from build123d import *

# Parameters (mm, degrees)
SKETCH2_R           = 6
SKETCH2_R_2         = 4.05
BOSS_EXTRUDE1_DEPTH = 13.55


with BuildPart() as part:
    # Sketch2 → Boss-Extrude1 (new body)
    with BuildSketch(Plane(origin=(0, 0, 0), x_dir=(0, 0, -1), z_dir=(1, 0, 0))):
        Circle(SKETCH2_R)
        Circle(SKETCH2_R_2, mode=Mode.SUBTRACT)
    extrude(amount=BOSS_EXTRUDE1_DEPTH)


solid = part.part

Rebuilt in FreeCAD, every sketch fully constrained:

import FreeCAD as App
import Part
import Sketcher

V = App.Vector
Q = App.Units.Quantity

doc = App.newDocument("Part")
body = doc.addObject("PartDesign::Body", "Body")

# Sketch on YZ plane
sketch1 = body.newObject("Sketcher::SketchObject", "Sketch")
sketch1.AttachmentSupport = (doc.getObject("YZ_Plane"), [""])
sketch1.MapMode = "FlatFace"
sketch1.addGeometry([
    Part.Circle(V(0, 0, 0), V(0, 0, 1), 6),
    Part.Circle(V(0, 0, 0), V(0, 0, 1), 4),
], False)
sketch1.addConstraint([
    Sketcher.Constraint("Coincident", 0, 3, -1, 1),
    Sketcher.Constraint("Coincident", 1, 3, -1, 1),
    Sketcher.Constraint("Diameter", 0, Q("12 mm")),
    Sketcher.Constraint("Diameter", 1, Q("8.1 mm")),
])
pad1 = body.newObject("PartDesign::Pad", "Pad")
pad1.Profile = sketch1
pad1.Length = 13.55

doc.recompute()
